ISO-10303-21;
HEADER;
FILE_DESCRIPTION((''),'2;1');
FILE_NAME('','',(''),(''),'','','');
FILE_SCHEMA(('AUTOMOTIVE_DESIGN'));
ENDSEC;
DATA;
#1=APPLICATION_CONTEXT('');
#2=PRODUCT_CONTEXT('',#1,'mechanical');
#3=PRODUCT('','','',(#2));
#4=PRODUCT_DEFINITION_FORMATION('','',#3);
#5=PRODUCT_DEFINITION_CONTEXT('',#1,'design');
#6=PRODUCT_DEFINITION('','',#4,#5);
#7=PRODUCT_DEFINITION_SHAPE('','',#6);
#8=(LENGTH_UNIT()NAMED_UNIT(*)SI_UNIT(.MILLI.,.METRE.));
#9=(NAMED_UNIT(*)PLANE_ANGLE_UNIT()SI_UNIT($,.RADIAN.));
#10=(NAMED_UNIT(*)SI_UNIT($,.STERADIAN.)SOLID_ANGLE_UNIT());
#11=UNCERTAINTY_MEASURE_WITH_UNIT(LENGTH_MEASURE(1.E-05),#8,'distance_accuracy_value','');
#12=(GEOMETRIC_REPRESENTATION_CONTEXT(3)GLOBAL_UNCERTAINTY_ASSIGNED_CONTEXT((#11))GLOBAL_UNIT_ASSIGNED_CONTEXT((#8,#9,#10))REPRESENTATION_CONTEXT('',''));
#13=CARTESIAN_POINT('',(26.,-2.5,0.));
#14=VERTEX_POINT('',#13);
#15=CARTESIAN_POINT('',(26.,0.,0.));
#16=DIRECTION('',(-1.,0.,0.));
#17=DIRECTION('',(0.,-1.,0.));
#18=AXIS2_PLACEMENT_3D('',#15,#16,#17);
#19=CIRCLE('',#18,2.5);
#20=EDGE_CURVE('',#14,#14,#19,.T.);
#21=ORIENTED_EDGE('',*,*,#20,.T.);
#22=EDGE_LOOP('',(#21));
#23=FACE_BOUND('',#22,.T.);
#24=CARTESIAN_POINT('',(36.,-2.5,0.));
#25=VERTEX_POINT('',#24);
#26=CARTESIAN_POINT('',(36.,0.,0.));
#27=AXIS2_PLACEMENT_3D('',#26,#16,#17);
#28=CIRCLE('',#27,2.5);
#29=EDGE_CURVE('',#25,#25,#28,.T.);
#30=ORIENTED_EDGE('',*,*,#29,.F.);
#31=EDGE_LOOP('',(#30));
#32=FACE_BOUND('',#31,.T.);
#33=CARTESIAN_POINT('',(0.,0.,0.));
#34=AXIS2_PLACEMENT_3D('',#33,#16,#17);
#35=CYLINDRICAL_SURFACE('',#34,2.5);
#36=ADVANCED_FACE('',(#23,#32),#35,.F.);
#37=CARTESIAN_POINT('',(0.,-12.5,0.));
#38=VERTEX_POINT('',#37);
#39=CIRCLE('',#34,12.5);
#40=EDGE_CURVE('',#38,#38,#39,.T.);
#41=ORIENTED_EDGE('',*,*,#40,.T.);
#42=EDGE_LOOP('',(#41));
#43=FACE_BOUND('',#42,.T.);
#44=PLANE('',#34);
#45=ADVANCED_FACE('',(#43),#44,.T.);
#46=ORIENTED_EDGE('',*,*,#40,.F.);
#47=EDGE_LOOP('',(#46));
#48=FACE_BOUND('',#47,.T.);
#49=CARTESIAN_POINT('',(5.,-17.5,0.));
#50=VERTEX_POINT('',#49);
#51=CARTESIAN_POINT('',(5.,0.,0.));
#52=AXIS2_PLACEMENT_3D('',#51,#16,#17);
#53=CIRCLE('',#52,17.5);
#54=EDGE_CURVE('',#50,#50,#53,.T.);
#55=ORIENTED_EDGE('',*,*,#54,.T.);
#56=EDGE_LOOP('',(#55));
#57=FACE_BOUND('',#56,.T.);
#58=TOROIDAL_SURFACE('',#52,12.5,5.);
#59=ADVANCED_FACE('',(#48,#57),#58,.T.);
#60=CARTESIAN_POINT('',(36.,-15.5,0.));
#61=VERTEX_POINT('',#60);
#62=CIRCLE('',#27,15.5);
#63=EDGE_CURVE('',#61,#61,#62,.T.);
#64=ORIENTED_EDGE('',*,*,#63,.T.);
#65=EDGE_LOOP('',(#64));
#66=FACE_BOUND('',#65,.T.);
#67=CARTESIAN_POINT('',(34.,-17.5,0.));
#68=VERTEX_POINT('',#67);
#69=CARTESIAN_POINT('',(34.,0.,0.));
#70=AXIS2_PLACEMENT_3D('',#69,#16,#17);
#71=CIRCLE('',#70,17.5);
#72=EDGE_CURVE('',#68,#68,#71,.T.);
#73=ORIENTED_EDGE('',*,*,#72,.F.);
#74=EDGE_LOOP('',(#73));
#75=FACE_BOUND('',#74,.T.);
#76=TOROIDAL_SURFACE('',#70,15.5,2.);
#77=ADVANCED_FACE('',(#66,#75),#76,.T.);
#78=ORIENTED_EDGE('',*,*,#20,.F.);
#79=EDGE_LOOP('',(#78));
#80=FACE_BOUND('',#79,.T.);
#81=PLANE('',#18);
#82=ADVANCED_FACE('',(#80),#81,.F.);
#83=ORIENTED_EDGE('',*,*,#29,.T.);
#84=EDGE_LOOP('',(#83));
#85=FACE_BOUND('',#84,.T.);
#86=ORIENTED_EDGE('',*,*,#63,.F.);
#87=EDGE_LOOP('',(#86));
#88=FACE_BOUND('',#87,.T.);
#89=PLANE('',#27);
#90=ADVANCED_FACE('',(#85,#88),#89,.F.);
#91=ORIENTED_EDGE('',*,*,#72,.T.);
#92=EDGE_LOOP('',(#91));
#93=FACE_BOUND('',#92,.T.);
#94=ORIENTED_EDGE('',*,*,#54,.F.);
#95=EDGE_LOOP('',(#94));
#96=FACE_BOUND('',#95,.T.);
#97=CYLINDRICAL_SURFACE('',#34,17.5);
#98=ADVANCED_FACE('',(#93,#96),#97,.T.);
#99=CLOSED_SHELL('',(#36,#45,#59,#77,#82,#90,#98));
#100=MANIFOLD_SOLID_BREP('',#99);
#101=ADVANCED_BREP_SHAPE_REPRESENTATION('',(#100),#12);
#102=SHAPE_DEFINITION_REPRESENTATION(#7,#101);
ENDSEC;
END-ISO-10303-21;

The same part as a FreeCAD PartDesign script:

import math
import FreeCAD as App
import Part
import Sketcher

V = App.Vector

doc = App.newDocument("Part")
body = doc.addObject("PartDesign::Body", "Body")

# Sketch on XY plane
sketch1 = doc.addObject("Sketcher::SketchObject", "Sketch")
body.addObject(sketch1)
sketch1.AttachmentSupport = (doc.XY_Plane, [""])
sketch1.MapMode = "FlatFace"
sketch1.addGeometry([
    Part.LineSegment(V(26, 0, 0), V(0, 0, 0)),  # 0
    Part.LineSegment(V(0, 0, 0), V(0, -12.5, 0)),  # 1
    Part.ArcOfCircle(Part.Circle(V(5, -12.5, 0), V(0, 0, 1), 5), math.radians(180), math.radians(270)),  # 2
    Part.LineSegment(V(5, -17.5, 0), V(34, -17.5, 0)),  # 3
    Part.ArcOfCircle(Part.Circle(V(34, -15.5, 0), V(0, 0, 1), 2), math.radians(-90), math.radians(0)),  # 4
    Part.LineSegment(V(36, -15.5, 0), V(36, -2.5, 0)),  # 5
    Part.LineSegment(V(36, -2.5, 0), V(26, -2.5, 0)),  # 6
    Part.LineSegment(V(26, -2.5, 0), V(26, 0, 0)),  # 7
], False)
sketch1.addConstraint([
    Sketcher.Constraint("Coincident", 0, 2, 1, 1),
    Sketcher.Constraint("Tangent", 1, 2, 2, 1),
    Sketcher.Constraint("Tangent", 2, 2, 3, 1),
    Sketcher.Constraint("Tangent", 3, 2, 4, 1),
    Sketcher.Constraint("Tangent", 4, 2, 5, 1),
    Sketcher.Constraint("Coincident", 5, 2, 6, 1),
    Sketcher.Constraint("Coincident", 6, 2, 7, 1),
    Sketcher.Constraint("Coincident", 7, 2, 0, 1),
    Sketcher.Constraint("Horizontal", 0),
    Sketcher.Constraint("Vertical", 1),
    Sketcher.Constraint("Horizontal", 3),
    Sketcher.Constraint("Vertical", 5),
    Sketcher.Constraint("Horizontal", 6),
    Sketcher.Constraint("Vertical", 7),
    Sketcher.Constraint("Coincident", 0, 2, -1, 1),
    Sketcher.Constraint("Radius", 2, 5.0),
    Sketcher.Constraint("Radius", 4, 2.0),
    Sketcher.Constraint("DistanceX", 0, 2, 0, 1, 26.0),
    Sketcher.Constraint("DistanceX", 3, 1, 3, 2, 29.0),
    Sketcher.Constraint("DistanceY", 5, 1, 5, 2, 13.0),
    Sketcher.Constraint("DistanceY", 1, 2, 1, 1, 12.5),
])
revolution = doc.addObject("PartDesign::Revolution", "Revolution")
body.addObject(revolution)
revolution.Profile = sketch1
revolution.ReferenceAxis = (sketch1, ["H_Axis"])
revolution.Angle = 360

doc.recompute()
